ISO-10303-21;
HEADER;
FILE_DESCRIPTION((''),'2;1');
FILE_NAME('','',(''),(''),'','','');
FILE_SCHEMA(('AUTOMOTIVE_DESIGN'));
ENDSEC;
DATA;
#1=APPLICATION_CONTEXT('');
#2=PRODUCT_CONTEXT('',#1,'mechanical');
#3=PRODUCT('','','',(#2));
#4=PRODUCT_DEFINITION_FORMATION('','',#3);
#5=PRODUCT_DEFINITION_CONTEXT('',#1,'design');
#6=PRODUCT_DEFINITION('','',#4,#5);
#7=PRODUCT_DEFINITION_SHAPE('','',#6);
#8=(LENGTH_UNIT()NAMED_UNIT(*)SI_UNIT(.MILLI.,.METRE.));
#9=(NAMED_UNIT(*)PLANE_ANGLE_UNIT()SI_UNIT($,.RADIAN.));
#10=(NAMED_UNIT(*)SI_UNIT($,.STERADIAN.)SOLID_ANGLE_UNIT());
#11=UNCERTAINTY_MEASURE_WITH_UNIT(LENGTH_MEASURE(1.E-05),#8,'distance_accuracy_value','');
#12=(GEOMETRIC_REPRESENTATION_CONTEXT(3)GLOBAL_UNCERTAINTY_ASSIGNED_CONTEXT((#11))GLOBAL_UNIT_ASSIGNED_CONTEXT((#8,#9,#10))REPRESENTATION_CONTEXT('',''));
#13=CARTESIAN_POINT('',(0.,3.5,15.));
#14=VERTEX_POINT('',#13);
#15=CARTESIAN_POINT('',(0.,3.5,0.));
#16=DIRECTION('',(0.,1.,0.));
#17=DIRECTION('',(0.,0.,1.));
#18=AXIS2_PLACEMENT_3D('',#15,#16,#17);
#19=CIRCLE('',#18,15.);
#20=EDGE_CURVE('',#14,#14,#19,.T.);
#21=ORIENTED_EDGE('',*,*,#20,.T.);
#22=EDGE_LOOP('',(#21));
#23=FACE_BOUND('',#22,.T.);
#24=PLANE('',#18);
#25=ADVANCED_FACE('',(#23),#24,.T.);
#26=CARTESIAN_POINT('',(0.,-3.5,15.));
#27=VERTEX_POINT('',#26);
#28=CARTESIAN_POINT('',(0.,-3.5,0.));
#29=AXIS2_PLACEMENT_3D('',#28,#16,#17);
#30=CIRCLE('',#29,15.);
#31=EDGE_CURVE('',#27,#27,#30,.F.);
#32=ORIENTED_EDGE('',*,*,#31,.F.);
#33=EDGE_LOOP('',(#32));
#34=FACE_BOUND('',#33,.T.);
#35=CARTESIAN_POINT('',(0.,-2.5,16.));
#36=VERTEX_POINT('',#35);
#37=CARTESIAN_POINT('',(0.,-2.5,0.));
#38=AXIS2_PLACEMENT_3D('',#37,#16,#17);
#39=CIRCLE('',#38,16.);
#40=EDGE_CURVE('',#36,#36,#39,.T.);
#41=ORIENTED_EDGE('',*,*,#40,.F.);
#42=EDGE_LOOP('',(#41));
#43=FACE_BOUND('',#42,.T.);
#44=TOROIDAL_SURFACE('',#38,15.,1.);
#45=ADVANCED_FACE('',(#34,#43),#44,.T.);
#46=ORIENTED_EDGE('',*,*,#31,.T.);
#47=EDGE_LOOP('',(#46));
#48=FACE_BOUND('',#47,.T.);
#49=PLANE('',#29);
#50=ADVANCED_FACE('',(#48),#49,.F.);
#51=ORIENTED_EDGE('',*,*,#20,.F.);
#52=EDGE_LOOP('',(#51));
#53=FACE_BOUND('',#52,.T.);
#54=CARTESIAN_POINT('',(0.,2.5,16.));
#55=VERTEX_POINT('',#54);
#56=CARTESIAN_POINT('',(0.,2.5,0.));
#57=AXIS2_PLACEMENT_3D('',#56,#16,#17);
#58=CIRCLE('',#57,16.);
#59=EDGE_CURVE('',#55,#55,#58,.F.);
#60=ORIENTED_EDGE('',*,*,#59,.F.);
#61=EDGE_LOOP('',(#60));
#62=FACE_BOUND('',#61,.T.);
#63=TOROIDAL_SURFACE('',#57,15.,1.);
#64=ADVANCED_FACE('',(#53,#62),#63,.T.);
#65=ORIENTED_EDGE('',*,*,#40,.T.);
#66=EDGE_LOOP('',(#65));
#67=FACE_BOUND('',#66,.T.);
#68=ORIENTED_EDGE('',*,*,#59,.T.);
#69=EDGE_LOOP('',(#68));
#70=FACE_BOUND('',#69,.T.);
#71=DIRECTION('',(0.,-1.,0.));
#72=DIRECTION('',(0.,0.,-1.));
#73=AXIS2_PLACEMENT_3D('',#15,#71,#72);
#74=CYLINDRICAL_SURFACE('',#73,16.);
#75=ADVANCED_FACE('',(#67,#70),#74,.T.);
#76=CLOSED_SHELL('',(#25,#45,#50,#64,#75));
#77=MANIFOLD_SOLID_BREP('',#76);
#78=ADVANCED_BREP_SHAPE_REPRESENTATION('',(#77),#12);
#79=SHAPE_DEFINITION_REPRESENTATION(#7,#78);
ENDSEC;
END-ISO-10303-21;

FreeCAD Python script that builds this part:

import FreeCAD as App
import Part
import Sketcher
from FreeCAD import Vector


def edges_at(feature, points):
    """Names of the edges that pass closest to the given points."""
    edges = feature.Shape.Edges
    near = lambda p: min(range(len(edges)), key=lambda i: edges[i].distToShape(Part.Vertex(*p))[0])
    return sorted({f"Edge{near(p) + 1}" for p in points})

doc = App.newDocument("Part")
body = doc.addObject("PartDesign::Body", "Body")

# Sketch on XZ plane
sketch1 = doc.addObject("Sketcher::SketchObject", "Sketch")
body.addObject(sketch1)
sketch1.AttachmentSupport = (doc.XZ_Plane, [""])
sketch1.MapMode = "FlatFace"
sketch1.addGeometry(Part.Circle(Vector(0, 0, 0), Vector(0, 0, 1), 16), False)
sketch1.addConstraint([
    Sketcher.Constraint("Coincident", 0, 3, -1, 1),
    Sketcher.Constraint("Diameter", 0, 32.0),
])
pad1 = doc.addObject("PartDesign::Pad", "Pad")
body.addObject(pad1)
pad1.Profile = sketch1
pad1.Length = 7
pad1.Midplane = True
doc.recompute()

fillet = doc.addObject("PartDesign::Fillet", "Fillet")
body.addObject(fillet)
fillet.Base = (pad1, edges_at(pad1, [(0, -3.5, -16), (0, 3.5, -16)]))
fillet.Radius = 1

doc.recompute()
